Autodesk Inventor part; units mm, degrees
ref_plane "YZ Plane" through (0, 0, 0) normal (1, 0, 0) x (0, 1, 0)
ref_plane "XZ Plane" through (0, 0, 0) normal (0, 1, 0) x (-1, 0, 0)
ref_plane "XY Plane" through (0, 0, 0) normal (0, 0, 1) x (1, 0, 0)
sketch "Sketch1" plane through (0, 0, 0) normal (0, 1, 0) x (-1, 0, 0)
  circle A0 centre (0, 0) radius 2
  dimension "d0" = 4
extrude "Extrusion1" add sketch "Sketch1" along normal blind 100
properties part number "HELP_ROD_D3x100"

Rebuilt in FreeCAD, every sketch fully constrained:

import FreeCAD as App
import Part
import Sketcher
Q = App.Units.Quantity

doc = App.newDocument("Part")
body = doc.addObject("PartDesign::Body", "Body")

sketch1 = body.newObject("Sketcher::SketchObject", "Sketch")
sketch1.AttachmentSupport = (doc.getObject("XZ_Plane"), [""])
sketch1.MapMode = "FlatFace"
sketch1.addGeometry(Part.Circle(App.Vector(0, 0, 0), App.Vector(0, 0, 1), 2), False)
sketch1.addConstraint([
    Sketcher.Constraint("Coincident", 0, 3, -1, 1),
    Sketcher.Constraint("Diameter", 0, Q("4 mm")),
])
pad1 = body.newObject("PartDesign::Pad", "Pad")
pad1.Profile = sketch1
pad1.Length = 100
pad1.Reversed = True

doc.recompute()
